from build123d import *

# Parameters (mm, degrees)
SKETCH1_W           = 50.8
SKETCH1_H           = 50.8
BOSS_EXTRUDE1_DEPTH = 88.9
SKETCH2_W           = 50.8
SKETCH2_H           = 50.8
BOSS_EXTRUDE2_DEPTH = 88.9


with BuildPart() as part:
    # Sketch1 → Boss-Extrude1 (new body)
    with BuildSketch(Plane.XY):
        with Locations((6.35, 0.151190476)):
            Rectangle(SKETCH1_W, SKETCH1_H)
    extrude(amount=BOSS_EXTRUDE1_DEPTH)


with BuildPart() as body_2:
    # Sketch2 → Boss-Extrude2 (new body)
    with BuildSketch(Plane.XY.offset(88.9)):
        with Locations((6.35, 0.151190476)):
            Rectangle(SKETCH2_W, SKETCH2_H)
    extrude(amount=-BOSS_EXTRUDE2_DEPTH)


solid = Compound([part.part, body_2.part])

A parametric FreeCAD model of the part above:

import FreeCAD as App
import Part
import Sketcher
from FreeCAD import Vector
Q = App.Units.Quantity


def add_polygon(sketch, points):
    """Adds a closed chain of lines whose ends are joined by coincident constraints."""
    first, n = sketch.GeometryCount, len(points)
    for a, b in zip(points, points[1:] + points[:1]):
        sketch.addGeometry(Part.LineSegment(App.Vector(*a, 0), App.Vector(*b, 0)), False)
    for i in range(n):
        sketch.addConstraint(Sketcher.Constraint("Coincident", first + i, 2, first + (i + 1) % n, 1))

doc = App.newDocument("Part")
params = doc.addObject("Spreadsheet::Sheet", "Params")
for row, (alias, value) in enumerate([
    ("sketch1_width", "2 in"),
    ("pad1_length", "3.5 in"),
    ("sketch2_width", "2 in"),
    ("pad2_length", "3.5 in"),
], start=1):
    params.set(f"A{row}", alias)
    params.set(f"B{row}", "=" + value)
    params.setAlias(f"B{row}", alias)

body = doc.addObject("PartDesign::Body", "Body")

# Sketch on XY plane
sketch1 = body.newObject("Sketcher::SketchObject", "Sketch")
sketch1.AttachmentSupport = (doc.getObject("XY_Plane"), [""])
sketch1.MapMode = "FlatFace"
add_polygon(sketch1, [(-19.05, 25.55119), (-19.05, -25.24881), (31.75, -25.24881), (31.75, 25.55119)])  # lines 0-3
sketch1.addConstraint([
    Sketcher.Constraint("Vertical", 0),
    Sketcher.Constraint("Horizontal", 1),
    Sketcher.Constraint("Vertical", 2),
    Sketcher.Constraint("Horizontal", 3),
    Sketcher.Constraint("Equal", 3, 0),
    Sketcher.Constraint("DistanceX", 1, 1, 1, 2, Q("2 in")),
    Sketcher.Constraint("DistanceX", 0, 2, -1, 1, Q("0.75 in")),
    Sketcher.Constraint("DistanceY", 0, 2, -1, 1, Q("25.24881 mm")),
])
sketch1.setExpression("Constraints[9]", "Params.sketch1_width")
pad1 = body.newObject("PartDesign::Pad", "Pad")
pad1.Profile = sketch1
pad1.setExpression("Length", "Params.pad1_length")
body2 = doc.addObject("PartDesign::Body", "Body001")

# Sketch on XY plane
sketch2 = body2.newObject("Sketcher::SketchObject", "Sketch001")
sketch2.AttachmentSupport = (doc.getObject("XY_Plane001"), [""])
sketch2.MapMode = "FlatFace"
sketch2.AttachmentOffset = App.Placement(Vector(0, 0, 3.5 * 25.4), App.Rotation())
add_polygon(sketch2, [(-19.05, 25.55119), (-19.05, -25.24881), (31.75, -25.24881), (31.75, 25.55119)])  # lines 0-3
sketch2.addConstraint([
    Sketcher.Constraint("Vertical", 0),
    Sketcher.Constraint("Horizontal", 1),
    Sketcher.Constraint("Vertical", 2),
    Sketcher.Constraint("Horizontal", 3),
    Sketcher.Constraint("Equal", 3, 0),
    Sketcher.Constraint("DistanceX", 1, 1, 1, 2, Q("2 in")),
    Sketcher.Constraint("DistanceX", 0, 2, -1, 1, Q("0.75 in")),
    Sketcher.Constraint("DistanceY", 0, 2, -1, 1, Q("25.24881 mm")),
])
sketch2.setExpression("Constraints[9]", "Params.sketch2_width")
pad2 = body2.newObject("PartDesign::Pad", "Pad001")
pad2.Profile = sketch2
pad2.setExpression("Length", "Params.pad2_length")
pad2.Reversed = True

doc.recompute()
